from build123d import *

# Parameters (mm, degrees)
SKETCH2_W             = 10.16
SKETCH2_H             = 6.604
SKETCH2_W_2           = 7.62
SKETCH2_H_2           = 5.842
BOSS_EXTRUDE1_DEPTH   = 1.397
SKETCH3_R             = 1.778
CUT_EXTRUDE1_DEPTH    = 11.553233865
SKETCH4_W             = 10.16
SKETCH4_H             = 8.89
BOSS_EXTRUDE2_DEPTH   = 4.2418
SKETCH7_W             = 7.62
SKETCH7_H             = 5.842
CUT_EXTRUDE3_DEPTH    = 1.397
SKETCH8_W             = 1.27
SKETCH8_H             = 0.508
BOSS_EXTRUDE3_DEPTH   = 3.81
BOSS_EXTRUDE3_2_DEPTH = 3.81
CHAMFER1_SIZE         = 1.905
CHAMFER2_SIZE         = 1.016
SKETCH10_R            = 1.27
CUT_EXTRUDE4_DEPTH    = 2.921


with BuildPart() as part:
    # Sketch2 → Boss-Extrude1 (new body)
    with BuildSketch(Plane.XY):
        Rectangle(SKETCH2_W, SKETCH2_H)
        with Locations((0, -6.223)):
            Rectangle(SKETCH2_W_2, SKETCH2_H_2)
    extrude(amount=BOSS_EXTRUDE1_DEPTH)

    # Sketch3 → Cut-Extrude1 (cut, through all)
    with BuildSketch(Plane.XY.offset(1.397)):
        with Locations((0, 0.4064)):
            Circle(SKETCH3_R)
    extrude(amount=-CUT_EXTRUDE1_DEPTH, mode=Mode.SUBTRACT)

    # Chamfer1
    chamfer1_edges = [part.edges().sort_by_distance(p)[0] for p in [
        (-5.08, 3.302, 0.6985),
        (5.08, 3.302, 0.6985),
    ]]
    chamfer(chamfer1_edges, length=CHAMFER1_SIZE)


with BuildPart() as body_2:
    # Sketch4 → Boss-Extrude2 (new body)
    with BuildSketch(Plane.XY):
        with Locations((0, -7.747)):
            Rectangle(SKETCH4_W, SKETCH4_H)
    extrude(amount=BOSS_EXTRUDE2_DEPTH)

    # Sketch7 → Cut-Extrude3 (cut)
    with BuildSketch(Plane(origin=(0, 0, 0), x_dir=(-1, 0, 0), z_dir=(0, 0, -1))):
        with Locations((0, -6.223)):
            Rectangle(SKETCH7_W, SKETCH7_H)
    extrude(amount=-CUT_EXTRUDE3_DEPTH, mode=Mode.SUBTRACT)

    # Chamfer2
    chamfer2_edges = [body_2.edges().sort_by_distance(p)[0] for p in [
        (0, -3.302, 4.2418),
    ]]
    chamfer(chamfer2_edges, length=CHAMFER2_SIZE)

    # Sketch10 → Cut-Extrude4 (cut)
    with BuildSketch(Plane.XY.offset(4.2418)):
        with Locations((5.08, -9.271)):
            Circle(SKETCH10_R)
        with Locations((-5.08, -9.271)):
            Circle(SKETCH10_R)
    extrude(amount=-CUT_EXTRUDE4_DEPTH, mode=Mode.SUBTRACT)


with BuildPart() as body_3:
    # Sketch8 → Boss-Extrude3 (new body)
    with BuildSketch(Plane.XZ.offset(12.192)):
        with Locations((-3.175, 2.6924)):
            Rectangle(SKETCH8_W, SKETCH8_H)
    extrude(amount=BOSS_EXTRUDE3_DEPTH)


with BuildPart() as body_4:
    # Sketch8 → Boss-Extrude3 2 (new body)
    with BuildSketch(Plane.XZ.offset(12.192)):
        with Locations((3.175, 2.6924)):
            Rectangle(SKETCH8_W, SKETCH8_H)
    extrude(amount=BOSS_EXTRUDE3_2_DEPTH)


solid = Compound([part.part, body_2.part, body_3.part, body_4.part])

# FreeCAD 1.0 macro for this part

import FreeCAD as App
import Part
import Sketcher
Q = App.Units.Quantity


def edges_at(feature, points):
    """Names of the edges that pass closest to the given points."""
    edges = feature.Shape.Edges
    near = lambda p: min(range(len(edges)), key=lambda i: edges[i].distToShape(Part.Vertex(*p))[0])
    return sorted({f"Edge{near(p) + 1}" for p in points})

doc = App.newDocument("Part")
body = doc.addObject("PartDesign::Body", "Body")

# Sketch on XY plane
sketch1 = body.newObject("Sketcher::SketchObject", "Sketch")
sketch1.AttachmentSupport = (doc.getObject("XY_Plane"), [""])
sketch1.MapMode = "FlatFace"
sketch1.addGeometry(Part.LineSegment(App.Vector(-5.1, 3.3, 0), App.Vector(-5.1, -3.3, 0)), False)
sketch1.addGeometry(Part.LineSegment(App.Vector(-5.1, -3.3, 0), App.Vector(-3.8, -3.3, 0)), False)
sketch1.addGeometry(Part.LineSegment(App.Vector(-3.8, -3.3, 0), App.Vector(-3.8, -9.1, 0)), False)
sketch1.addGeometry(Part.LineSegment(App.Vector(-3.8, -9.1, 0), App.Vector(3.8, -9.1, 0)), False)
sketch1.addGeometry(Part.LineSegment(App.Vector(3.8, -9.1, 0), App.Vector(3.8, -3.3, 0)), False)
sketch1.addGeometry(Part.LineSegment(App.Vector(3.8, -3.3, 0), App.Vector(5.1, -3.3, 0)), False)
sketch1.addGeometry(Part.LineSegment(App.Vector(5.1, -3.3, 0), App.Vector(5.1, 3.3, 0)), False)
sketch1.addGeometry(Part.LineSegment(App.Vector(5.1, 3.3, 0), App.Vector(-5.1, 3.3, 0)), False)
sketch1.addConstraint(Sketcher.Constraint("Coincident", 0, 2, 1, 1))
sketch1.addConstraint(Sketcher.Constraint("Coincident", 1, 2, 2, 1))
sketch1.addConstraint(Sketcher.Constraint("Coincident", 2, 2, 3, 1))
sketch1.addConstraint(Sketcher.Constraint("Coincident", 3, 2, 4, 1))
sketch1.addConstraint(Sketcher.Constraint("Coincident", 4, 2, 5, 1))
sketch1.addConstraint(Sketcher.Constraint("Coincident", 5, 2, 6, 1))
sketch1.addConstraint(Sketcher.Constraint("Coincident", 6, 2, 7, 1))
sketch1.addConstraint(Sketcher.Constraint("Coincident", 7, 2, 0, 1))
sketch1.addConstraint(Sketcher.Constraint("Vertical", 0))
sketch1.addConstraint(Sketcher.Constraint("Horizontal", 1))
sketch1.addConstraint(Sketcher.Constraint("Vertical", 2))
sketch1.addConstraint(Sketcher.Constraint("Horizontal", 3))
sketch1.addConstraint(Sketcher.Constraint("Vertical", 4))
sketch1.addConstraint(Sketcher.Constraint("Horizontal", 5))
sketch1.addConstraint(Sketcher.Constraint("Vertical", 6))
sketch1.addConstraint(Sketcher.Constraint("Horizontal", 7))
sketch1.addConstraint(Sketcher.Constraint("Symmetric", 0, 2, 6, 2, -1, 1))
sketch1.addConstraint(Sketcher.Constraint("Symmetric", 1, 2, 4, 2, -2))
sketch1.addConstraint(Sketcher.Constraint("DistanceX", 3, 1, 3, 2, Q("0.3 in")))
sketch1.addConstraint(Sketcher.Constraint("DistanceX", 7, 2, 7, 1, Q("0.4 in")))
sketch1.addConstraint(Sketcher.Constraint("DistanceY", 0, 2, 0, 1, Q("0.26 in")))
sketch1.addConstraint(Sketcher.Constraint("DistanceY", 2, 2, 2, 1, Q("0.23 in")))
pad1 = body.newObject("PartDesign::Pad", "Pad")
pad1.Profile = sketch1
pad1.Length = Q("0.055 in")

# Sketch on XY plane
sketch2 = body.newObject("Sketcher::SketchObject", "Sketch001")
sketch2.AttachmentSupport = (doc.getObject("XY_Plane"), [""])
sketch2.MapMode = "FlatFace"
sketch2.AttachmentOffset = App.Placement(App.Vector(0, 0, 0.055 * 25.4), App.Rotation())
sketch2.addGeometry(Part.Circle(App.Vector(0, 0.4, 0), App.Vector(0, 0, 1), 1.8), False)
sketch2.addConstraint(Sketcher.Constraint("PointOnObject", 0, 3, -2))
sketch2.addConstraint(Sketcher.Constraint("Diameter", 0, Q("0.14 in")))
sketch2.addConstraint(Sketcher.Constraint("DistanceY", -1, 1, 0, 3, Q("0.016 in")))
pocket1 = body.newObject("PartDesign::Pocket", "Pocket")
pocket1.Profile = sketch2
pocket1.Type = "ThroughAll"
doc.recompute()

chamfer = body.newObject("PartDesign::Chamfer", "Chamfer")
chamfer.Base = (pocket1, edges_at(pocket1, [(-5.08, 3.302, 0.699), (5.08, 3.302, 0.699)]))
chamfer.Size = Q("0.075 in")
body2 = doc.addObject("PartDesign::Body", "Body001")

# Sketch on XY plane
sketch3 = body2.newObject("Sketcher::SketchObject", "Sketch002")
sketch3.AttachmentSupport = (doc.getObject("XY_Plane001"), [""])
sketch3.MapMode = "FlatFace"
sketch3.addGeometry(Part.LineSegment(App.Vector(-5, -3, 0), App.Vector(-5, -12, 0)), False)
sketch3.addGeometry(Part.LineSegment(App.Vector(-5, -12, 0), App.Vector(5, -12, 0)), False)
sketch3.addGeometry(Part.LineSegment(App.Vector(5, -12, 0), App.Vector(5, -3, 0)), False)
sketch3.addGeometry(Part.LineSegment(App.Vector(5, -3, 0), App.Vector(-5, -3, 0)), False)
sketch3.addConstraint(Sketcher.Constraint("Coincident", 0, 2, 1, 1))
sketch3.addConstraint(Sketcher.Constraint("Coincident", 1, 2, 2, 1))
sketch3.addConstraint(Sketcher.Constraint("Coincident", 2, 2, 3, 1))
sketch3.addConstraint(Sketcher.Constraint("Coincident", 3, 2, 0, 1))
sketch3.addConstraint(Sketcher.Constraint("Vertical", 0))
sketch3.addConstraint(Sketcher.Constraint("Horizontal", 1))
sketch3.addConstraint(Sketcher.Constraint("Vertical", 2))
sketch3.addConstraint(Sketcher.Constraint("Horizontal", 3))
sketch3.addConstraint(Sketcher.Constraint("DistanceX", 1, 1, 1, 2, Q("0.4 in")))
sketch3.addConstraint(Sketcher.Constraint("DistanceY", 0, 2, 0, 1, Q("0.35 in")))
sketch3.addConstraint(Sketcher.Constraint("DistanceX", 0, 2, -1, 1, Q("0.2 in")))
sketch3.addConstraint(Sketcher.Constraint("DistanceY", 0, 2, -1, 1, Q("0.48 in")))
pad2 = body2.newObject("PartDesign::Pad", "Pad001")
pad2.Profile = sketch3
pad2.Length = Q("0.167 in")

# Sketch on XY plane
sketch4 = body2.newObject("Sketcher::SketchObject", "Sketch003")
sketch4.AttachmentSupport = (doc.getObject("XY_Plane001"), [""])
sketch4.MapMode = "FlatFace"
sketch4.addGeometry(Part.LineSegment(App.Vector(4, -3, 0), App.Vector(4, -9, 0)), False)
sketch4.addGeometry(Part.LineSegment(App.Vector(4, -9, 0), App.Vector(-4, -9, 0)), False)
sketch4.addGeometry(Part.LineSegment(App.Vector(-4, -9, 0), App.Vector(-4, -3, 0)), False)
sketch4.addGeometry(Part.LineSegment(App.Vector(-4, -3, 0), App.Vector(4, -3, 0)), False)
sketch4.addConstraint(Sketcher.Constraint("Coincident", 0, 2, 1, 1))
sketch4.addConstraint(Sketcher.Constraint("Coincident", 1, 2, 2, 1))
sketch4.addConstraint(Sketcher.Constraint("Coincident", 2, 2, 3, 1))
sketch4.addConstraint(Sketcher.Constraint("Coincident", 3, 2, 0, 1))
sketch4.addConstraint(Sketcher.Constraint("Vertical", 0))
sketch4.addConstraint(Sketcher.Constraint("Horizontal", 1))
sketch4.addConstraint(Sketcher.Constraint("Vertical", 2))
sketch4.addConstraint(Sketcher.Constraint("Horizontal", 3))
sketch4.addConstraint(Sketcher.Constraint("DistanceX", 1, 2, 1, 1, Q("0.3 in")))
sketch4.addConstraint(Sketcher.Constraint("DistanceY", 0, 2, 0, 1, Q("0.23 in")))
sketch4.addConstraint(Sketcher.Constraint("DistanceX", -1, 1, 0, 2, Q("0.15 in")))
sketch4.addConstraint(Sketcher.Constraint("DistanceY", 0, 2, -1, 1, Q("0.36 in")))
pocket2 = body2.newObject("PartDesign::Pocket", "Pocket001")
pocket2.Profile = sketch4
pocket2.Length = Q("0.055 in")
pocket2.Reversed = True
doc.recompute()

chamfer2 = body2.newObject("PartDesign::Chamfer", "Chamfer001")
chamfer2.Base = (pocket2, edges_at(pocket2, [(0, -3.302, 4.242)]))
chamfer2.Size = Q("0.04 in")

# Sketch on XY plane
sketch5 = body2.newObject("Sketcher::SketchObject", "Sketch004")
sketch5.AttachmentSupport = (doc.getObject("XY_Plane001"), [""])
sketch5.MapMode = "FlatFace"
sketch5.AttachmentOffset = App.Placement(App.Vector(0, 0, 0.167 * 25.4), App.Rotation())
sketch5.addGeometry(Part.Circle(App.Vector(5.1, -9.3, 0), App.Vector(0, 0, 1), 1.3), False)
sketch5.addGeometry(Part.Circle(App.Vector(-5.1, -9.3, 0), App.Vector(0, 0, 1), 1.3), False)
sketch5.addConstraint(Sketcher.Constraint("Equal", 0, 1))
sketch5.addConstraint(Sketcher.Constraint("Symmetric", 0, 3, 1, 3, -2))
sketch5.addConstraint(Sketcher.Constraint("Diameter", 0, Q("0.1 in")))
sketch5.addConstraint(Sketcher.Constraint("DistanceX", -1, 1, 0, 3, Q("0.2 in")))
sketch5.addConstraint(Sketcher.Constraint("DistanceY", 0, 3, -1, 1, Q("0.365 in")))
pocket3 = body2.newObject("PartDesign::Pocket", "Pocket002")
pocket3.Profile = sketch5
pocket3.Length = Q("0.115 in")
body3 = doc.addObject("PartDesign::Body", "Body002")

# Sketch on XZ plane
sketch6 = body3.newObject("Sketcher::SketchObject", "Sketch005")
sketch6.AttachmentSupport = (doc.getObject("XZ_Plane002"), [""])
sketch6.MapMode = "FlatFace"
sketch6.AttachmentOffset = App.Placement(App.Vector(0, 0, 0.48 * 25.4), App.Rotation())
sketch6.addGeometry(Part.LineSegment(App.Vector(-3.8, 2.9, 0), App.Vector(-3.8, 2.4, 0)), False)
sketch6.addGeometry(Part.LineSegment(App.Vector(-3.8, 2.4, 0), App.Vector(-2.5, 2.4, 0)), False)
sketch6.addGeometry(Part.LineSegment(App.Vector(-2.5, 2.4, 0), App.Vector(-2.5, 2.9, 0)), False)
sketch6.addGeometry(Part.LineSegment(App.Vector(-2.5, 2.9, 0), App.Vector(-3.8, 2.9, 0)), False)
sketch6.addConstraint(Sketcher.Constraint("Coincident", 0, 2, 1, 1))
sketch6.addConstraint(Sketcher.Constraint("Coincident", 1, 2, 2, 1))
sketch6.addConstraint(Sketcher.Constraint("Coincident", 2, 2, 3, 1))
sketch6.addConstraint(Sketcher.Constraint("Coincident", 3, 2, 0, 1))
sketch6.addConstraint(Sketcher.Constraint("Vertical", 0))
sketch6.addConstraint(Sketcher.Constraint("Horizontal", 1))
sketch6.addConstraint(Sketcher.Constraint("Vertical", 2))
sketch6.addConstraint(Sketcher.Constraint("Horizontal", 3))
sketch6.addConstraint(Sketcher.Constraint("DistanceX", 1, 1, 1, 2, Q("0.05 in")))
sketch6.addConstraint(Sketcher.Constraint("DistanceY", 0, 2, 0, 1, Q("0.02 in")))
sketch6.addConstraint(Sketcher.Constraint("DistanceX", 1, 2, -1, 1, Q("0.1 in")))
sketch6.addConstraint(Sketcher.Constraint("DistanceY", -1, 1, 0, 2, Q("0.096 in")))
pad3 = body3.newObject("PartDesign::Pad", "Pad002")
pad3.Profile = sketch6
pad3.Length = Q("0.15 in")
body4 = doc.addObject("PartDesign::Body", "Body003")

# Sketch on XZ plane
sketch7 = body4.newObject("Sketcher::SketchObject", "Sketch006")
sketch7.AttachmentSupport = (doc.getObject("XZ_Plane003"), [""])
sketch7.MapMode = "FlatFace"
sketch7.AttachmentOffset = App.Placement(App.Vector(0, 0, 0.48 * 25.4), App.Rotation())
sketch7.addGeometry(Part.LineSegment(App.Vector(2.5, 2.9, 0), App.Vector(2.5, 2.4, 0)), False)
sketch7.addGeometry(Part.LineSegment(App.Vector(2.5, 2.4, 0), App.Vector(3.8, 2.4, 0)), False)
sketch7.addGeometry(Part.LineSegment(App.Vector(3.8, 2.4, 0), App.Vector(3.8, 2.9, 0)), False)
sketch7.addGeometry(Part.LineSegment(App.Vector(3.8, 2.9, 0), App.Vector(2.5, 2.9, 0)), False)
sketch7.addConstraint(Sketcher.Constraint("Coincident", 0, 2, 1, 1))
sketch7.addConstraint(Sketcher.Constraint("Coincident", 1, 2, 2, 1))
sketch7.addConstraint(Sketcher.Constraint("Coincident", 2, 2, 3, 1))
sketch7.addConstraint(Sketcher.Constraint("Coincident", 3, 2, 0, 1))
sketch7.addConstraint(Sketcher.Constraint("Vertical", 0))
sketch7.addConstraint(Sketcher.Constraint("Horizontal", 1))
sketch7.addConstraint(Sketcher.Constraint("Vertical", 2))
sketch7.addConstraint(Sketcher.Constraint("Horizontal", 3))
sketch7.addConstraint(Sketcher.Constraint("DistanceX", 1, 1, 1, 2, Q("0.05 in")))
sketch7.addConstraint(Sketcher.Constraint("DistanceY", 0, 2, 0, 1, Q("0.02 in")))
sketch7.addConstraint(Sketcher.Constraint("DistanceX", -1, 1, 0, 2, Q("0.1 in")))
sketch7.addConstraint(Sketcher.Constraint("DistanceY", -1, 1, 0, 2, Q("0.096 in")))
pad4 = body4.newObject("PartDesign::Pad", "Pad003")
pad4.Profile = sketch7
pad4.Length = Q("0.15 in")

doc.recompute()
